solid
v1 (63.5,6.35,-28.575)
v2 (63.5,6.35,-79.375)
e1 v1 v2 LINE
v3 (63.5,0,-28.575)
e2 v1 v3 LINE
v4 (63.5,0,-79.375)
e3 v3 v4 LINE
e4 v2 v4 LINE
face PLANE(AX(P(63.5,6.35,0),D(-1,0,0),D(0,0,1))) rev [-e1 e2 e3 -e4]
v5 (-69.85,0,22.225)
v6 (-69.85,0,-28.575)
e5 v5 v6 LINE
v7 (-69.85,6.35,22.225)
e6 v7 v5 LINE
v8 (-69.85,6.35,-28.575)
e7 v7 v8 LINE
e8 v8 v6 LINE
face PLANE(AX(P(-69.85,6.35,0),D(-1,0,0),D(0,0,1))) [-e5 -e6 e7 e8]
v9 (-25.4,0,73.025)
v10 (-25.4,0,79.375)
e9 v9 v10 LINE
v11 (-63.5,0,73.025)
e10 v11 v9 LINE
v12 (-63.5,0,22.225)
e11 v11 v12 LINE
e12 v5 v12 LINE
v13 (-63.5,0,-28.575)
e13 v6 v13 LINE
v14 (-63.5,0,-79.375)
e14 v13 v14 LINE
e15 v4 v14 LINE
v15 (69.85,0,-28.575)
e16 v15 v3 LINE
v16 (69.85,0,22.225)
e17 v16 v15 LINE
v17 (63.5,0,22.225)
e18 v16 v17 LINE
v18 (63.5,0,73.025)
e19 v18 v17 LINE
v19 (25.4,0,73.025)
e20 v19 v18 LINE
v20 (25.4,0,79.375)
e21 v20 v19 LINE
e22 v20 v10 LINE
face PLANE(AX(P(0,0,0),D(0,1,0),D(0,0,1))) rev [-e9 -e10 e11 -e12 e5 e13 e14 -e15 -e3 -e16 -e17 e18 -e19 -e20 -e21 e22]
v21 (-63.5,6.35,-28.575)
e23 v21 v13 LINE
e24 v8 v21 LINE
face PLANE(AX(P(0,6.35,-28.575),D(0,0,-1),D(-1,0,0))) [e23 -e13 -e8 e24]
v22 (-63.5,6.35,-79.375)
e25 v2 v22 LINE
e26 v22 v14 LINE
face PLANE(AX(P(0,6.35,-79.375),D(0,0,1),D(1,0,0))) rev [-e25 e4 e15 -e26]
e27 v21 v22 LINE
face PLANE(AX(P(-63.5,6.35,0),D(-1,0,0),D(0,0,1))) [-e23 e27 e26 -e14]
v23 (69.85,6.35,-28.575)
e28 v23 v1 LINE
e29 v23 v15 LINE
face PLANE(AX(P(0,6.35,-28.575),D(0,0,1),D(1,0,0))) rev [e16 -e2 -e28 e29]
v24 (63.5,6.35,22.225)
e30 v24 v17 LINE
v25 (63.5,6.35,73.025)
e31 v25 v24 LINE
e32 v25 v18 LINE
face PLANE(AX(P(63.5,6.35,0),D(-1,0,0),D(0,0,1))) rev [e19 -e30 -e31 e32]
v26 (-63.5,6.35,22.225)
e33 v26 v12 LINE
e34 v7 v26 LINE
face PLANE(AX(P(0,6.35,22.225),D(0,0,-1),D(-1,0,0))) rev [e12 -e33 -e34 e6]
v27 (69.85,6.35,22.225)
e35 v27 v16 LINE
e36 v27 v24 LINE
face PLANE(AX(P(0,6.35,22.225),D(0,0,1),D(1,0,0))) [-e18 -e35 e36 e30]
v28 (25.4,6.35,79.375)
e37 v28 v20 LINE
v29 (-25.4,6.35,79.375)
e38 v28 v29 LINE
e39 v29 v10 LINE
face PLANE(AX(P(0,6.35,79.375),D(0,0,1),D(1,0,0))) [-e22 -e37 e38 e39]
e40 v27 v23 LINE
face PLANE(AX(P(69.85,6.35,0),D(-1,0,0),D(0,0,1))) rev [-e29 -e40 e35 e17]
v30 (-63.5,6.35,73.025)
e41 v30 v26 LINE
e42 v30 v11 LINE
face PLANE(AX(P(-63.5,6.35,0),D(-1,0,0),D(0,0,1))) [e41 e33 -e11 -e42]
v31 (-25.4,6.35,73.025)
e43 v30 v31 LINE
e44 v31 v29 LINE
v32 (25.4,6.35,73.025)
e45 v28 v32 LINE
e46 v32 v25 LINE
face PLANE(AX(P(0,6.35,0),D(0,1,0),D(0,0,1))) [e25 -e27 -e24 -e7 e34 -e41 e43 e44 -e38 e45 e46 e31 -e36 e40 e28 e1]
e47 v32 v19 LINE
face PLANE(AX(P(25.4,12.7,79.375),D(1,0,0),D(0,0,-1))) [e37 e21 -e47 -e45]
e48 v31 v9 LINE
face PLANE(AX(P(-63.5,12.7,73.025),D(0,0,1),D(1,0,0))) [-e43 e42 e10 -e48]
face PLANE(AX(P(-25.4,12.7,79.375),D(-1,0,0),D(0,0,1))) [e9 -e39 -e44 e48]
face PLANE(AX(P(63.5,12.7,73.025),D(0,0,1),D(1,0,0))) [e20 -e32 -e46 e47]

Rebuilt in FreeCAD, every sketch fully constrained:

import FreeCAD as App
import Part
import Sketcher
Q = App.Units.Quantity

doc = App.newDocument("Part")
body = doc.addObject("PartDesign::Body", "Body")

# Sketch on XZ plane
sketch1 = body.newObject("Sketcher::SketchObject", "Sketch")
sketch1.AttachmentSupport = (doc.getObject("XZ_Plane"), [""])
sketch1.MapMode = "FlatFace"
sketch1.addGeometry([
    Part.LineSegment(App.Vector(-64, 79, 0), App.Vector(64, 79, 0)),  # 0
    Part.LineSegment(App.Vector(64, 79, 0), App.Vector(64, 22, 0)),  # 1
    Part.LineSegment(App.Vector(64, 22, 0), App.Vector(70, 22, 0)),  # 2
    Part.LineSegment(App.Vector(70, 22, 0), App.Vector(70, -29, 0)),  # 3
    Part.LineSegment(App.Vector(70, -29, 0), App.Vector(64, -29, 0)),  # 4
    Part.LineSegment(App.Vector(64, -29, 0), App.Vector(64, -79, 0)),  # 5
    Part.LineSegment(App.Vector(64, -79, 0), App.Vector(-64, -79, 0)),  # 6
    Part.LineSegment(App.Vector(-64, -79, 0), App.Vector(-64, -29, 0)),  # 7
    Part.LineSegment(App.Vector(-64, -29, 0), App.Vector(-70, -29, 0)),  # 8
    Part.LineSegment(App.Vector(-70, -29, 0), App.Vector(-70, 22, 0)),  # 9
    Part.LineSegment(App.Vector(-70, 22, 0), App.Vector(-64, 22, 0)),  # 10
    Part.LineSegment(App.Vector(-64, 22, 0), App.Vector(-64, 79, 0)),  # 11
], False)
sketch1.addConstraint([
    Sketcher.Constraint("Coincident", 0, 2, 1, 1),
    Sketcher.Constraint("Coincident", 1, 2, 2, 1),
    Sketcher.Constraint("Coincident", 2, 2, 3, 1),
    Sketcher.Constraint("Coincident", 3, 2, 4, 1),
    Sketcher.Constraint("Coincident", 4, 2, 5, 1),
    Sketcher.Constraint("Coincident", 5, 2, 6, 1),
    Sketcher.Constraint("Coincident", 6, 2, 7, 1),
    Sketcher.Constraint("Coincident", 7, 2, 8, 1),
    Sketcher.Constraint("Coincident", 8, 2, 9, 1),
    Sketcher.Constraint("Coincident", 9, 2, 10, 1),
    Sketcher.Constraint("Coincident", 10, 2, 11, 1),
    Sketcher.Constraint("Coincident", 11, 2, 0, 1),
    Sketcher.Constraint("Horizontal", 0),
    Sketcher.Constraint("Vertical", 1),
    Sketcher.Constraint("Horizontal", 2),
    Sketcher.Constraint("Vertical", 3),
    Sketcher.Constraint("Horizontal", 4),
    Sketcher.Constraint("Vertical", 5),
    Sketcher.Constraint("Horizontal", 6),
    Sketcher.Constraint("Vertical", 7),
    Sketcher.Constraint("Horizontal", 8),
    Sketcher.Constraint("Vertical", 9),
    Sketcher.Constraint("Horizontal", 10),
    Sketcher.Constraint("Vertical", 11),
    Sketcher.Constraint("Symmetric", 0, 2, 6, 2, -1, 1),
    Sketcher.Constraint("Symmetric", 4, 2, 7, 2, -2),
    Sketcher.Constraint("Symmetric", 2, 2, 9, 2, -2),
    Sketcher.Constraint("Vertical", 7, 2, 10, 2),
    Sketcher.Constraint("Equal", 3, 5),
    Sketcher.Constraint("DistanceX", 0, 1, 0, 2, Q("5 in")),
    Sketcher.Constraint("DistanceY", 3, 2, 3, 1, Q("2 in")),
    Sketcher.Constraint("DistanceX", 2, 1, 2, 2, Q("0.25 in")),
    Sketcher.Constraint("DistanceY", 1, 2, 1, 1, Q("2.25 in")),
])
pad1 = body.newObject("PartDesign::Pad", "Pad")
pad1.Profile = sketch1
pad1.Length = Q("0.25 in")
pad1.Reversed = True

# Sketch on XZ plane
sketch2 = body.newObject("Sketcher::SketchObject", "Sketch001")
sketch2.AttachmentSupport = (doc.getObject("XZ_Plane"), [""])
sketch2.MapMode = "FlatFace"
sketch2.AttachmentOffset = App.Placement(App.Vector(0, 0, -0.25 * 25.4), App.Rotation())
sketch2.addGeometry([
    Part.LineSegment(App.Vector(-64, 73, 0), App.Vector(-64, 79, 0)),  # 0
    Part.LineSegment(App.Vector(-64, 79, 0), App.Vector(-25, 79, 0)),  # 1
    Part.LineSegment(App.Vector(-25, 79, 0), App.Vector(-25, 73, 0)),  # 2
    Part.LineSegment(App.Vector(-25, 73, 0), App.Vector(-64, 73, 0)),  # 3
    Part.LineSegment(App.Vector(25, 73, 0), App.Vector(25, 79, 0)),  # 4
    Part.LineSegment(App.Vector(25, 79, 0), App.Vector(64, 79, 0)),  # 5
    Part.LineSegment(App.Vector(64, 79, 0), App.Vector(64, 73, 0)),  # 6
    Part.LineSegment(App.Vector(64, 73, 0), App.Vector(25, 73, 0)),  # 7
], False)
sketch2.addConstraint([
    Sketcher.Constraint("Coincident", 0, 2, 1, 1),
    Sketcher.Constraint("Coincident", 1, 2, 2, 1),
    Sketcher.Constraint("Coincident", 2, 2, 3, 1),
    Sketcher.Constraint("Coincident", 3, 2, 0, 1),
    Sketcher.Constraint("Coincident", 4, 2, 5, 1),
    Sketcher.Constraint("Coincident", 5, 2, 6, 1),
    Sketcher.Constraint("Coincident", 6, 2, 7, 1),
    Sketcher.Constraint("Coincident", 7, 2, 4, 1),
    Sketcher.Constraint("Vertical", 0),
    Sketcher.Constraint("Horizontal", 1),
    Sketcher.Constraint("Vertical", 2),
    Sketcher.Constraint("Horizontal", 3),
    Sketcher.Constraint("Vertical", 4),
    Sketcher.Constraint("Horizontal", 5),
    Sketcher.Constraint("Vertical", 6),
    Sketcher.Constraint("Horizontal", 7),
    Sketcher.Constraint("Symmetric", 1, 2, 4, 2, -2),
    Sketcher.Constraint("Symmetric", 3, 2, 6, 2, -2),
    Sketcher.Constraint("DistanceX", 1, 1, 1, 2, Q("1.5 in")),
    Sketcher.Constraint("DistanceX", 1, 2, -1, 1, Q("1 in")),
    Sketcher.Constraint("DistanceY", 0, 1, 0, 2, Q("0.25 in")),
    Sketcher.Constraint("DistanceY", -1, 1, 0, 2, Q("3.125 in")),
])
pocket1 = body.newObject("PartDesign::Pocket", "Pocket")
pocket1.Profile = sketch2
pocket1.Type = "ThroughAll"
pocket1.Midplane = True

doc.recompute()
